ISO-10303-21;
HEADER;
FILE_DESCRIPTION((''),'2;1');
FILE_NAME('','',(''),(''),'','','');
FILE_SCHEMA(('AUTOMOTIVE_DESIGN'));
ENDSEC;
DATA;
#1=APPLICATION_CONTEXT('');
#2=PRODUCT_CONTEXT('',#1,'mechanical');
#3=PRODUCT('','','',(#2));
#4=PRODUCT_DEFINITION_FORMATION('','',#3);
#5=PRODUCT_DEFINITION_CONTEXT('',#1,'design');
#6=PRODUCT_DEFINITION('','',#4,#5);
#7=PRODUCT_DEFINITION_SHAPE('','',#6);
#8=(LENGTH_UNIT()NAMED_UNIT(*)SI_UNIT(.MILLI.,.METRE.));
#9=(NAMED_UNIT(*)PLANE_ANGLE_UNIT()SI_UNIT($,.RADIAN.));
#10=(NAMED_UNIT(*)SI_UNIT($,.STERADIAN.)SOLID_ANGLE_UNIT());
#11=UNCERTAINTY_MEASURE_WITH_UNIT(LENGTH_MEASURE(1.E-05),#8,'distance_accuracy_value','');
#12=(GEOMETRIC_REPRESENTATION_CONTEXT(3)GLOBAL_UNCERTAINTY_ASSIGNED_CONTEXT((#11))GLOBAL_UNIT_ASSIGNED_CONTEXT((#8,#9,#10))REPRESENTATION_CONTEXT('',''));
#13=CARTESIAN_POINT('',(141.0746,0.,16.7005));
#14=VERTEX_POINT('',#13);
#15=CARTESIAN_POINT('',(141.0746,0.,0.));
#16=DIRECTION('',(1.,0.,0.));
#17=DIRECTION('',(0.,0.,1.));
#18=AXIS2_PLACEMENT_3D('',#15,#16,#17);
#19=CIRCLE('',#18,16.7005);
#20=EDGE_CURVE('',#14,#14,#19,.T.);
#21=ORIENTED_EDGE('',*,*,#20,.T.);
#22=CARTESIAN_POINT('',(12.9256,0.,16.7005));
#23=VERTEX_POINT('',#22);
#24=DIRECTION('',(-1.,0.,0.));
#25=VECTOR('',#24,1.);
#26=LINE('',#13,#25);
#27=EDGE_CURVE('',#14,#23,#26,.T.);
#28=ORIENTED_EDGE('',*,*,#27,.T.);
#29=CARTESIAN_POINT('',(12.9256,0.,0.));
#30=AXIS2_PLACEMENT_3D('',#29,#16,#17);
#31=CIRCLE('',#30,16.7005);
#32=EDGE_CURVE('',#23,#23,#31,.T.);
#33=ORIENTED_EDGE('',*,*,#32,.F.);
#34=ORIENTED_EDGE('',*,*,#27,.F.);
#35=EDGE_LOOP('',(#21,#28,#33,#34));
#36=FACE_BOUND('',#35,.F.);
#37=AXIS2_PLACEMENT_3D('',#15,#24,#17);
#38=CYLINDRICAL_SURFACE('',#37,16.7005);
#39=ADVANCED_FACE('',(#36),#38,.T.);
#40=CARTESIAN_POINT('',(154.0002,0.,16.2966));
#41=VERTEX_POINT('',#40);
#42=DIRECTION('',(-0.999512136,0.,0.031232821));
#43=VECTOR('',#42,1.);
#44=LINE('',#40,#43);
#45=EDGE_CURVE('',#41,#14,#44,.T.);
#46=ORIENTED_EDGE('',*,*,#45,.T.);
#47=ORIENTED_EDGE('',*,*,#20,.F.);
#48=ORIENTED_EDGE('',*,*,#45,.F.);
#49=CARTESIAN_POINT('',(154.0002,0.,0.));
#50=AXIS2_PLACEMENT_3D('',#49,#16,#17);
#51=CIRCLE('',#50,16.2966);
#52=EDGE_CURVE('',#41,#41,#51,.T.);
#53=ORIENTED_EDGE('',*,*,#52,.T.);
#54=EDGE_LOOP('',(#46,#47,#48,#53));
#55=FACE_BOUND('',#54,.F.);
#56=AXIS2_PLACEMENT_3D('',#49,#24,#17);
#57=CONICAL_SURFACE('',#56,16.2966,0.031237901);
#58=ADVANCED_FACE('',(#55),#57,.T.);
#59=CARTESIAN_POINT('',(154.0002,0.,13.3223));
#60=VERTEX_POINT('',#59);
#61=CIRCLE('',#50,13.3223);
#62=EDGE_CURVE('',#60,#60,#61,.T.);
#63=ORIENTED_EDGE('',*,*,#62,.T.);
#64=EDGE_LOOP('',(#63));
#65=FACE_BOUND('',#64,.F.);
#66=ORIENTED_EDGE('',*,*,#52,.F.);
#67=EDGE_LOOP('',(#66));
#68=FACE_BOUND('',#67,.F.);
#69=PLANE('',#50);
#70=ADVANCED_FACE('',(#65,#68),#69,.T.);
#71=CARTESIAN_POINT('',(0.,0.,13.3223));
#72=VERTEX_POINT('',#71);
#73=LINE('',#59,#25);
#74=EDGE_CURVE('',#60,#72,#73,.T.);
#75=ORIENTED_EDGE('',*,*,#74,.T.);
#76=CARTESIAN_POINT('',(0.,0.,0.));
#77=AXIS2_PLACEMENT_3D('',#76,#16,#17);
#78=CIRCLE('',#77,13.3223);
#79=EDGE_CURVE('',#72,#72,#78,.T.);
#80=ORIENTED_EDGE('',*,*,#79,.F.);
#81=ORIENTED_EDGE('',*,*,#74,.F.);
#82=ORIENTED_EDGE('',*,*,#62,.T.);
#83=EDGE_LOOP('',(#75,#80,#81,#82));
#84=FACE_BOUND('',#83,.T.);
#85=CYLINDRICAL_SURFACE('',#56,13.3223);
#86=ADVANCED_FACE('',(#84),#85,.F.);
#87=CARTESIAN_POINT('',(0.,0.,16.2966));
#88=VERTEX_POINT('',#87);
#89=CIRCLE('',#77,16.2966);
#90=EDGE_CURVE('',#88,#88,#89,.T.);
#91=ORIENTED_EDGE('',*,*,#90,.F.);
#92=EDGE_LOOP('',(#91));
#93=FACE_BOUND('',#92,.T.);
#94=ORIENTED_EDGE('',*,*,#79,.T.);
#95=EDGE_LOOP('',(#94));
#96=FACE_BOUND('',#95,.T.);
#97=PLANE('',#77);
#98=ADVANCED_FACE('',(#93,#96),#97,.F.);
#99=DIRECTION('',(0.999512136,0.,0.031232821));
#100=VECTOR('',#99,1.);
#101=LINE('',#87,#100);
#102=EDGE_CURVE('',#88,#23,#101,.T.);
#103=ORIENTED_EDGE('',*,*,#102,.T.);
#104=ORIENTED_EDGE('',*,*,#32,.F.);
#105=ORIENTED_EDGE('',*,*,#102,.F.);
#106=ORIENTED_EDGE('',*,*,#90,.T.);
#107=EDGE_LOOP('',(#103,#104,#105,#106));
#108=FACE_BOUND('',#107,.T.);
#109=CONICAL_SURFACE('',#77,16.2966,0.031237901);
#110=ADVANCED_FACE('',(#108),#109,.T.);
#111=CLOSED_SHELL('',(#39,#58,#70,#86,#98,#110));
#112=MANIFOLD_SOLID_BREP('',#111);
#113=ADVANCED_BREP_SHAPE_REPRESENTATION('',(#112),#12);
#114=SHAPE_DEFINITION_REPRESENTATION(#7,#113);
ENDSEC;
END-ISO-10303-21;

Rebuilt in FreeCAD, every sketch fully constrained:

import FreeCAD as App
import Part
import Sketcher
from FreeCAD import Vector
Q = App.Units.Quantity


def add_polygon(sketch, points):
    """Adds a closed chain of lines whose ends are joined by coincident constraints."""
    first, n = sketch.GeometryCount, len(points)
    for a, b in zip(points, points[1:] + points[:1]):
        sketch.addGeometry(Part.LineSegment(App.Vector(*a, 0), App.Vector(*b, 0)), False)
    for i in range(n):
        sketch.addConstraint(Sketcher.Constraint("Coincident", first + i, 2, first + (i + 1) % n, 1))

doc = App.newDocument("Part")
body = doc.addObject("PartDesign::Body", "Body")

# Sketch on XZ plane
sketch1 = body.newObject("Sketcher::SketchObject", "Sketch")
sketch1.AttachmentSupport = (doc.getObject("XZ_Plane"), [""])
sketch1.MapMode = "FlatFace"
add_polygon(sketch1, [(154, 16.3), (154, 13.3), (0, 13.3), (0, 16.3), (12.9, 16.7), (141.1, 16.7)])  # lines 0-5
sketch1.addConstraint([
    Sketcher.Constraint("Vertical", 0),
    Sketcher.Constraint("Horizontal", 1),
    Sketcher.Constraint("Vertical", 2),
    Sketcher.Constraint("Horizontal", 4),
    Sketcher.Constraint("PointOnObject", 1, 2, -2),
    Sketcher.Constraint("Horizontal", 2, 2, 5, 2),
    Sketcher.Constraint("Equal", 3, 5),
    Sketcher.Constraint("DistanceX", 1, 2, 1, 1, Q("6.063 in")),
    Sketcher.Constraint("Angle", 3, Q("1.7898 deg")),
    Sketcher.Constraint("DistanceY", 0, 2, 0, 1, Q("0.1171 in")),
    Sketcher.Constraint("DistanceY", 1, 2, 3, 2, Q("0.133 in")),
    Sketcher.Constraint("DistanceY", -1, 1, 0, 2, Q("0.5245 in")),
])
revolution = body.newObject("PartDesign::Revolution", "Revolution")
revolution.Profile = sketch1
revolution.ReferenceAxis = (sketch1, ["H_Axis"])
revolution.Angle = 360

doc.recompute()
